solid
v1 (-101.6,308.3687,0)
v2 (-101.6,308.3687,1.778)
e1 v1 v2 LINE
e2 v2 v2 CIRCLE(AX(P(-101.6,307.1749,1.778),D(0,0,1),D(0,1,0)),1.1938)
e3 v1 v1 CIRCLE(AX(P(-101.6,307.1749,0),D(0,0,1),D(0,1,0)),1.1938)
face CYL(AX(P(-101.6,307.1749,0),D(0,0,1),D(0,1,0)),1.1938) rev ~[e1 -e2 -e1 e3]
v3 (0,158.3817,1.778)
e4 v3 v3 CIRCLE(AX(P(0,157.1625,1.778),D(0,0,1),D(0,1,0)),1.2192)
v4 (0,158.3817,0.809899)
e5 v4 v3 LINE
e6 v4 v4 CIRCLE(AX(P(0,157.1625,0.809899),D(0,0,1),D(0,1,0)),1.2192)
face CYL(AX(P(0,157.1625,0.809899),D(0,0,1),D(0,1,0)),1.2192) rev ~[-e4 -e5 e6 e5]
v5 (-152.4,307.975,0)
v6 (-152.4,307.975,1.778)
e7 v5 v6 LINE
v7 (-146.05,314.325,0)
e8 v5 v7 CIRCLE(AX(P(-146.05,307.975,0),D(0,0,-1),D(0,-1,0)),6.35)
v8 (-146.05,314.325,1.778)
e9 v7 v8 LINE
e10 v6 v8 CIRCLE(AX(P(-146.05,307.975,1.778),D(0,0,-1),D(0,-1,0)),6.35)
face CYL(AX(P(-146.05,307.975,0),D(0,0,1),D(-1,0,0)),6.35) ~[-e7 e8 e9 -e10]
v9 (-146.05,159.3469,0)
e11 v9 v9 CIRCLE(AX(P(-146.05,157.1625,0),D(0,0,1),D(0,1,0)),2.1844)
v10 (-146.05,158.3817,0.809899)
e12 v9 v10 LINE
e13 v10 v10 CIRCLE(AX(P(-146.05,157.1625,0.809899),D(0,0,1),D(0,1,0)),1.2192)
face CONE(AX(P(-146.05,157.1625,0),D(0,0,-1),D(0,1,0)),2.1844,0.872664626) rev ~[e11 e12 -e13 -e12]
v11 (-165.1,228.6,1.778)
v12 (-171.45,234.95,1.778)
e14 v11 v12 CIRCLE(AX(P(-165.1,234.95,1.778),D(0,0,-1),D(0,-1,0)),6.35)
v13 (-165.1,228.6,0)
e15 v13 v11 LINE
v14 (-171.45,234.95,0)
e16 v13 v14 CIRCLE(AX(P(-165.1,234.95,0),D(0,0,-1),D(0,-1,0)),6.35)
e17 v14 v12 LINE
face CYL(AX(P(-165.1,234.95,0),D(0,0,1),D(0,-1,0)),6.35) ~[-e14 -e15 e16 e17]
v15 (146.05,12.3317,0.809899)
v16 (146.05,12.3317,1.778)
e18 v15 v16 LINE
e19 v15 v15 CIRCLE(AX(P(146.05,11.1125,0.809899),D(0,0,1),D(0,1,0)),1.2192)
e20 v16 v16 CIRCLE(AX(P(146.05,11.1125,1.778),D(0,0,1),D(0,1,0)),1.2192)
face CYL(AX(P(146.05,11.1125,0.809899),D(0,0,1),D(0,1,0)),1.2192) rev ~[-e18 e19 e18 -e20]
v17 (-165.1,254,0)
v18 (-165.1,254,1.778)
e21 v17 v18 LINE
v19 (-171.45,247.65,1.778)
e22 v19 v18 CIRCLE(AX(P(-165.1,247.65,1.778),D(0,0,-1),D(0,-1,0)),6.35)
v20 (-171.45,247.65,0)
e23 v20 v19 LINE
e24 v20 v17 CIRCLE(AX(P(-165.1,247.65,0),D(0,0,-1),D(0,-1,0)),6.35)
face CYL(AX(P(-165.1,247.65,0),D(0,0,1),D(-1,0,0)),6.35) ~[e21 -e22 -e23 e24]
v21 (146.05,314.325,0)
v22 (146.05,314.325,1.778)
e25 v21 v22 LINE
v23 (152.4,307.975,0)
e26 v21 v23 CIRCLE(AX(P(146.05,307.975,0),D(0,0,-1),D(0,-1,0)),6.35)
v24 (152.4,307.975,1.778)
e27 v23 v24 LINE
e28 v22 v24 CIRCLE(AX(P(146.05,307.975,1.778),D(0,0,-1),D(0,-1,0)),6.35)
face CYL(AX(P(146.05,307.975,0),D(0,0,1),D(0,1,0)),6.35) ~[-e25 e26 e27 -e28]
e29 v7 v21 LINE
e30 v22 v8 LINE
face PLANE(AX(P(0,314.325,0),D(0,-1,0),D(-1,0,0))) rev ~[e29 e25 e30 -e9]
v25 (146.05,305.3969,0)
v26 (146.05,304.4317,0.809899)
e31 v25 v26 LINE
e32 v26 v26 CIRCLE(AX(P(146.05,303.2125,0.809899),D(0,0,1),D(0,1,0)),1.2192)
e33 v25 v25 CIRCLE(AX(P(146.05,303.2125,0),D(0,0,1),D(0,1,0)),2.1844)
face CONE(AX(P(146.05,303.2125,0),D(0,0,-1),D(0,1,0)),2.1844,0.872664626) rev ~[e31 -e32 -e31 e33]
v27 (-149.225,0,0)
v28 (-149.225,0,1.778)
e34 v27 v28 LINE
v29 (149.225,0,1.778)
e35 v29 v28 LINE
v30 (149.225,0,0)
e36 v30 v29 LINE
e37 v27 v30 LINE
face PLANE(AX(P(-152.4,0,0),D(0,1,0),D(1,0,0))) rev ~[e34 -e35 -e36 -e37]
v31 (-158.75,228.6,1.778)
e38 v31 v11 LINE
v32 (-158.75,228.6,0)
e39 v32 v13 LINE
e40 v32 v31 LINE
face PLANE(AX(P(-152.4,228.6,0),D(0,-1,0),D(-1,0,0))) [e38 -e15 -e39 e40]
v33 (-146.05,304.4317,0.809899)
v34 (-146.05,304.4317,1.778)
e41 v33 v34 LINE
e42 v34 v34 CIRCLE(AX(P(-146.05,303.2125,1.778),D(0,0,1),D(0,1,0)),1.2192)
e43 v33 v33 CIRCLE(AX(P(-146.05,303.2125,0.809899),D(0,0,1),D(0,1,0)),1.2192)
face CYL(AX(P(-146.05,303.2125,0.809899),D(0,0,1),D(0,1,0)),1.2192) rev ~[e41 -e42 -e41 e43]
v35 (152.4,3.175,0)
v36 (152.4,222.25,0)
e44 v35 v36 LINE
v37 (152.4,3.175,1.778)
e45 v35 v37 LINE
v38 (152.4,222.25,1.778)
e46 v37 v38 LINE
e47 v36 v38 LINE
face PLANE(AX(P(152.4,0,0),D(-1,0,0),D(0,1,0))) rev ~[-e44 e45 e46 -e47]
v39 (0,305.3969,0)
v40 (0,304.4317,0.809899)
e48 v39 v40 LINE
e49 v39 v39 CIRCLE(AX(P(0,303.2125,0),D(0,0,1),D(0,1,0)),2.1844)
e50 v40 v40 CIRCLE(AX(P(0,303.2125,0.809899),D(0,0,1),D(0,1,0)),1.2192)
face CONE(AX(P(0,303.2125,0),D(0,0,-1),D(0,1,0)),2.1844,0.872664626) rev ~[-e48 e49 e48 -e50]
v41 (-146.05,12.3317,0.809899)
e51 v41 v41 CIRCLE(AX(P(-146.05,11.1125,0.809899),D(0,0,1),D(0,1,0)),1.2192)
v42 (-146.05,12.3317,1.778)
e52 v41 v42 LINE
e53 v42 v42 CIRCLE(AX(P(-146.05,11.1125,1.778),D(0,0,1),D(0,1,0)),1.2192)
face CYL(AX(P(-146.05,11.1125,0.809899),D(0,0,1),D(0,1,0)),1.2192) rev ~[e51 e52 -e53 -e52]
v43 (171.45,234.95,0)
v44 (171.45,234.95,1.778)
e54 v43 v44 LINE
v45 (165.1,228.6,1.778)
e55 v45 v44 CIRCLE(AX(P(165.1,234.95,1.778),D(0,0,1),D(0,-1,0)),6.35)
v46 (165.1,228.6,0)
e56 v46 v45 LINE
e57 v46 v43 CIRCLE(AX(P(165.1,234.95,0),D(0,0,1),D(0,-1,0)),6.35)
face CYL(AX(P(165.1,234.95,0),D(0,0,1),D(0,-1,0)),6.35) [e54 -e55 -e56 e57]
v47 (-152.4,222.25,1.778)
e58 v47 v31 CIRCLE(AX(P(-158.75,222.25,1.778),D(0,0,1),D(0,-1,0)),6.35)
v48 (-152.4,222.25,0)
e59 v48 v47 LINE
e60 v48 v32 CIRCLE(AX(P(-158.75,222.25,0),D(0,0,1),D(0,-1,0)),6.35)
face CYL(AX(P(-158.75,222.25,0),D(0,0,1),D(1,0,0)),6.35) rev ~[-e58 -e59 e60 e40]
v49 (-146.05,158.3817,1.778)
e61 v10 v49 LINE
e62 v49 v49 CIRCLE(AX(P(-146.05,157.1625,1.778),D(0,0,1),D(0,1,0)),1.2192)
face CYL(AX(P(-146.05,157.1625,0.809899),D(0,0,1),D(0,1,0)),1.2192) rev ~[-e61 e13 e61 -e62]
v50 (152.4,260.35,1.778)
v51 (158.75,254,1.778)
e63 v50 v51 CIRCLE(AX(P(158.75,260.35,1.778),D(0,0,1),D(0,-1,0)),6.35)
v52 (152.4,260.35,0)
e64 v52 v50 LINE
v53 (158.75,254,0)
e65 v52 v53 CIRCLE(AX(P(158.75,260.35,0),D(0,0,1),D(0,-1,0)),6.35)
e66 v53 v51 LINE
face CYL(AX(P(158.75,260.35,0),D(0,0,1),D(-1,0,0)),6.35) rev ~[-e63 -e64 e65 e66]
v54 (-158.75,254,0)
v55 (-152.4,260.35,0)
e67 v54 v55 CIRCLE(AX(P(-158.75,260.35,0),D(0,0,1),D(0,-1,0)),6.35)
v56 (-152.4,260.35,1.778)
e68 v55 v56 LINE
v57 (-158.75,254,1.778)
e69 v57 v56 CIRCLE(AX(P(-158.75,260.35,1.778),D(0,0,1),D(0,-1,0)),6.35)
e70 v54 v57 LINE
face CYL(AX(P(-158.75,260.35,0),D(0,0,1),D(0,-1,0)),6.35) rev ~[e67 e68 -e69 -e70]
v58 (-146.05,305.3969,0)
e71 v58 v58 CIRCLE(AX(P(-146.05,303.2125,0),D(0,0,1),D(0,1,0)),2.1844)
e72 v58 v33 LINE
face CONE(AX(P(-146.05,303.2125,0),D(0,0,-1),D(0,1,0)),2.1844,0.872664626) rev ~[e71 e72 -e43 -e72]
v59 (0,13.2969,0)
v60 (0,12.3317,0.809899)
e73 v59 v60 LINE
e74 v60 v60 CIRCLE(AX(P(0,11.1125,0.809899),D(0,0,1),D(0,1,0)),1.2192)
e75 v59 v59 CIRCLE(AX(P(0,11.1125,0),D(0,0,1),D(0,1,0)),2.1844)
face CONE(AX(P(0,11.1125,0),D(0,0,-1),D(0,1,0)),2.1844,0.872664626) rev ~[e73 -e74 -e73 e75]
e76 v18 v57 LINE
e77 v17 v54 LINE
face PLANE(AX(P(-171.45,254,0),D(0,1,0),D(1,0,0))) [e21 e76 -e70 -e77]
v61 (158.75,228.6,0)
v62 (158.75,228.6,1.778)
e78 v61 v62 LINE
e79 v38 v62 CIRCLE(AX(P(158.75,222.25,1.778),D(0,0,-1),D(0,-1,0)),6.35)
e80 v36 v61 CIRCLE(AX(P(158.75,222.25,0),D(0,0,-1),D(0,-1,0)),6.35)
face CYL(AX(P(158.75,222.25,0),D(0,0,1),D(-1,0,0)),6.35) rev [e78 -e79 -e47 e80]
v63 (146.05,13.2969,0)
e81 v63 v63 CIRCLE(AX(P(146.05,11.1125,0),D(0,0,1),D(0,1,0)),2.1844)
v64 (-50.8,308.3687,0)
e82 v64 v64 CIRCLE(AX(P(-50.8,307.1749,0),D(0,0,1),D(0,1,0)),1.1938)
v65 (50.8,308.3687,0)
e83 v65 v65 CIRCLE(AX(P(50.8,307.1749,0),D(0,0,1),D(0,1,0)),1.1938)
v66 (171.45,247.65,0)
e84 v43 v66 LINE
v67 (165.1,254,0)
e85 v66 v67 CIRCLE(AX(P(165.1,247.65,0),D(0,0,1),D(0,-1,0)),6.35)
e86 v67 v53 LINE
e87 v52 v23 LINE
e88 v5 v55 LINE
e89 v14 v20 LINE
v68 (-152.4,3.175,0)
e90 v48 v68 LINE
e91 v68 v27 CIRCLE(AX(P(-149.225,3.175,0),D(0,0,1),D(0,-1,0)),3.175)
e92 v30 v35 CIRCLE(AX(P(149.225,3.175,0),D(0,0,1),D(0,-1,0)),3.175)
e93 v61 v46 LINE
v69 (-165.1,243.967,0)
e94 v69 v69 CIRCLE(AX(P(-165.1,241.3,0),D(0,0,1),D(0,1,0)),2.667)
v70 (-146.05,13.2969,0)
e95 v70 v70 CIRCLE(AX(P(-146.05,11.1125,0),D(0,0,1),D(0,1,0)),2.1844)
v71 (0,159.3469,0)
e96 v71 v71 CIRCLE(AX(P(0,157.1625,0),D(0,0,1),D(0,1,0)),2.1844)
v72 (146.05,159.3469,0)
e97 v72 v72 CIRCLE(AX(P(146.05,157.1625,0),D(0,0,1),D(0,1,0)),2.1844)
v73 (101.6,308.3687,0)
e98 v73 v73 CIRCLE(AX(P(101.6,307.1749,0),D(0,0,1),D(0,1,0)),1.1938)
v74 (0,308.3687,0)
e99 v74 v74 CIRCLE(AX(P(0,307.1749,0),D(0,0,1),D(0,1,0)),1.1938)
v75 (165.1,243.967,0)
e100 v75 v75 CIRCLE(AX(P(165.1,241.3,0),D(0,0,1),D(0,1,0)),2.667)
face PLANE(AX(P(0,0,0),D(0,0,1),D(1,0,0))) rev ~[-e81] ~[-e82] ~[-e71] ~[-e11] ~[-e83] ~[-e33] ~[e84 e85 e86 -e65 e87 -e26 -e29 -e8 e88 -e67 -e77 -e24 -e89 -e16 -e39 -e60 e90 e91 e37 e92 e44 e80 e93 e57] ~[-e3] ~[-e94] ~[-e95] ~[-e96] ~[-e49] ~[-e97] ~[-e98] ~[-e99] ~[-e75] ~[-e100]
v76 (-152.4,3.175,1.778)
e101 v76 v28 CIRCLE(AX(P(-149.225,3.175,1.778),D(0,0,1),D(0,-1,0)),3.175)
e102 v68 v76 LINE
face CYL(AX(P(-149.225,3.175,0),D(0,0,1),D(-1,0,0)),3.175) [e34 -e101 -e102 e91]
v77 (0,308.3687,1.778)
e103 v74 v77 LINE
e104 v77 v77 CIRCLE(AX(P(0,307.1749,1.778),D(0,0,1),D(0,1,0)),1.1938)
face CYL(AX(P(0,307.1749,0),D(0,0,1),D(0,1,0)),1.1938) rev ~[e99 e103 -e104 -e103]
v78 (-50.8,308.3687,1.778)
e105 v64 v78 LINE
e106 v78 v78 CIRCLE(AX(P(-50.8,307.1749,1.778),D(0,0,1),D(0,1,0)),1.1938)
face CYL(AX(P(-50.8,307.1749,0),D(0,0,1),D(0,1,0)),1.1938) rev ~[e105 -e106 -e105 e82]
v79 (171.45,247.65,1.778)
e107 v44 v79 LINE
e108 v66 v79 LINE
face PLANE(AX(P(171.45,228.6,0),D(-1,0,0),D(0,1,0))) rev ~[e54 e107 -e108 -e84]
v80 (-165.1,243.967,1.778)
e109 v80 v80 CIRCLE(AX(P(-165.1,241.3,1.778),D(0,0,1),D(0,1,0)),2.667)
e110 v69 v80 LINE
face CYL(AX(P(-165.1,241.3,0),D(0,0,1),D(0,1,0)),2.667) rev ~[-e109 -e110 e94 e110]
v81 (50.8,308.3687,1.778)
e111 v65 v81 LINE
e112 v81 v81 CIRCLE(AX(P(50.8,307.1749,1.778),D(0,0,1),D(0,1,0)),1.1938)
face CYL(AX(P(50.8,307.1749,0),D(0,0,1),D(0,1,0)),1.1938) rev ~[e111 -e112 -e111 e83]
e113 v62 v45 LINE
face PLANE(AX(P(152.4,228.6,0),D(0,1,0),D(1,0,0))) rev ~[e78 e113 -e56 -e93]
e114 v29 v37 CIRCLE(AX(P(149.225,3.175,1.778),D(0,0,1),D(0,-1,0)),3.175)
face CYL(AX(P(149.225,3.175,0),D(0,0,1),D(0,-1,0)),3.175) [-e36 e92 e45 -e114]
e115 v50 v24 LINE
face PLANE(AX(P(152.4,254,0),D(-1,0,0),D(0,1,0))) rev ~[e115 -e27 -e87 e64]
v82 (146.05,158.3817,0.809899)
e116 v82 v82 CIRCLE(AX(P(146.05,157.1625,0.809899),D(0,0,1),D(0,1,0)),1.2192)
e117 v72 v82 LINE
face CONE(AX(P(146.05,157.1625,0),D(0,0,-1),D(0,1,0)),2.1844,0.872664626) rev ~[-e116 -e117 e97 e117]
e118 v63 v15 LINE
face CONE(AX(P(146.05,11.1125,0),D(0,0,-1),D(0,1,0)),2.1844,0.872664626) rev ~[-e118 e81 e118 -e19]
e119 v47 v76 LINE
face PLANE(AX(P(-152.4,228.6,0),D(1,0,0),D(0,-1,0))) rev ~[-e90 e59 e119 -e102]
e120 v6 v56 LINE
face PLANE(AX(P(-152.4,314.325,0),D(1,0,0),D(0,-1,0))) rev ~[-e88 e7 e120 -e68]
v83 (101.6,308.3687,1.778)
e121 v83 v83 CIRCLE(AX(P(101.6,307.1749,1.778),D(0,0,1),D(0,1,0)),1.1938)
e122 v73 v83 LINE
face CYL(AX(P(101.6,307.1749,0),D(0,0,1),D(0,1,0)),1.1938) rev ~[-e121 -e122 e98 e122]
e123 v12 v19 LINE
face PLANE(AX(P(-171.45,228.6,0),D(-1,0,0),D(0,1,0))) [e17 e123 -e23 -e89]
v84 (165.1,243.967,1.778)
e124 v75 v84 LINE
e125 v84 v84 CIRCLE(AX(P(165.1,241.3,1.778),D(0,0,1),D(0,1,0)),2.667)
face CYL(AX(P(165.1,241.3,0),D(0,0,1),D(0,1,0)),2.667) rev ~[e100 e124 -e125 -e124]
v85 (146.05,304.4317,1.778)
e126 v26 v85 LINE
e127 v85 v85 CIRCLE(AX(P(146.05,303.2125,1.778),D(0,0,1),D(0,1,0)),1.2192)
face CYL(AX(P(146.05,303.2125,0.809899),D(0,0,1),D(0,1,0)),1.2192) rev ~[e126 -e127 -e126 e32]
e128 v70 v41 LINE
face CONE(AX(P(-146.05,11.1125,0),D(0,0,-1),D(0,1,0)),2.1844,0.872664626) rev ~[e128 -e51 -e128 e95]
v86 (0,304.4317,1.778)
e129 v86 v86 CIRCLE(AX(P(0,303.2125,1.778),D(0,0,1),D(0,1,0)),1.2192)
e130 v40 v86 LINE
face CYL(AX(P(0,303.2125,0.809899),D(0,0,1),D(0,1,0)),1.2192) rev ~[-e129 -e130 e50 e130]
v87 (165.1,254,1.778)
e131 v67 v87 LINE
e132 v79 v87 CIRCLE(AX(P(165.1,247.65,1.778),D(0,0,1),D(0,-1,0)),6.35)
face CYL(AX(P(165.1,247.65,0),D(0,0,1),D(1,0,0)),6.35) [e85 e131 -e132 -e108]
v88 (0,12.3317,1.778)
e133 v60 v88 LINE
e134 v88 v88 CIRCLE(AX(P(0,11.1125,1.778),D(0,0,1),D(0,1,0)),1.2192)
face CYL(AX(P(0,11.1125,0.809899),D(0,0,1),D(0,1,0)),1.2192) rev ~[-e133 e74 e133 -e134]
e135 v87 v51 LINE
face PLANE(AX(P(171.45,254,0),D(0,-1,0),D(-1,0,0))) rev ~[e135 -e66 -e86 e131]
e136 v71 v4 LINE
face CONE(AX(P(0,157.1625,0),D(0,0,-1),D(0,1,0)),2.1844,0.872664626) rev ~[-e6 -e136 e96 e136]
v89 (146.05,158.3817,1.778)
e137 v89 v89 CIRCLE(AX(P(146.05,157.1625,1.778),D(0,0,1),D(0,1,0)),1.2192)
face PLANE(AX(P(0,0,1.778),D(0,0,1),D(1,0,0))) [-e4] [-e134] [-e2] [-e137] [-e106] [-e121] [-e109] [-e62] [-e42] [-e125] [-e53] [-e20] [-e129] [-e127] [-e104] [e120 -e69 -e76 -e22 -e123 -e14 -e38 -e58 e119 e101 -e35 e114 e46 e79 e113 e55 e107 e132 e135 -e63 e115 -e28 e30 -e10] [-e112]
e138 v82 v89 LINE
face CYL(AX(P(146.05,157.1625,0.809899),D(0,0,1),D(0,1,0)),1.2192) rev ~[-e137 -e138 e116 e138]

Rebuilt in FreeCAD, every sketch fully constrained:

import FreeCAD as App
import Part
import Sketcher
Q = App.Units.Quantity


def edges_at(feature, points):
    """Names of the edges that pass closest to the given points."""
    edges = feature.Shape.Edges
    near = lambda p: min(range(len(edges)), key=lambda i: edges[i].distToShape(Part.Vertex(*p))[0])
    return sorted({f"Edge{near(p) + 1}" for p in points})


def add_polygon(sketch, points):
    """Adds a closed chain of lines whose ends are joined by coincident constraints."""
    first, n = sketch.GeometryCount, len(points)
    for a, b in zip(points, points[1:] + points[:1]):
        sketch.addGeometry(Part.LineSegment(App.Vector(*a, 0), App.Vector(*b, 0)), False)
    for i in range(n):
        sketch.addConstraint(Sketcher.Constraint("Coincident", first + i, 2, first + (i + 1) % n, 1))

doc = App.newDocument("Part")
params = doc.addObject("Spreadsheet::Sheet", "Params")
for row, (alias, value) in enumerate([
    ("sketch1_width", "12 in"),
    ("sketch1_height", "1 in"),
    ("sketch1_width2", "0.75 in"),
    ("sketch1_height2", "9 in"),
    ("pad1_length", "0.07 in"),
    ("sketch2_diameter", "0.21 in"),
    ("hole_diameter", "0.21 in"),
    ("fillet_radius", "0.125 in"),
    ("sketch3_diameter", "0.094 in"),
    ("hole2_diameter", "0.094 in"),
    ("fillet2_radius", "0.25 in"),
    ("sketch4_diameter", "0.096 in"),
    ("hole3_diameter", "0.096 in"),
    ("hole3_csink_diameter", "0.172 in"),
], start=1):
    params.set(f"A{row}", alias)
    params.set(f"B{row}", "=" + value)
    params.setAlias(f"B{row}", alias)

body = doc.addObject("PartDesign::Body", "Body")

sketch1 = doc.addObject("Sketcher::SketchObject", "Sketch")
body.addObject(sketch1)
sketch1.AttachmentSupport = (doc.XY_Plane, [""])
sketch1.MapMode = "FlatFace"
add_polygon(sketch1, [(-152, 229), (-152, 0), (152, 0), (152, 229), (171, 229), (171, 254), (152, 254), (152, 314), (-152, 314), (-152, 254), (-171, 254), (-171, 229)])
sketch1.addConstraint([
    Sketcher.Constraint("Vertical", 0),
    Sketcher.Constraint("Horizontal", 1),
    Sketcher.Constraint("Vertical", 2),
    Sketcher.Constraint("Horizontal", 3),
    Sketcher.Constraint("Vertical", 4),
    Sketcher.Constraint("Horizontal", 5),
    Sketcher.Constraint("Vertical", 6),
    Sketcher.Constraint("Horizontal", 7),
    Sketcher.Constraint("Vertical", 8),
    Sketcher.Constraint("Horizontal", 9),
    Sketcher.Constraint("Vertical", 10),
    Sketcher.Constraint("Horizontal", 11),
    Sketcher.Constraint("Symmetric", 0, 2, 1, 2, -1, 1),
    Sketcher.Constraint("Symmetric", 5, 2, 8, 2, -2),
    Sketcher.Constraint("Symmetric", 3, 2, 10, 2, -2),
    Sketcher.Constraint("Vertical", 2, 2, 5, 2),
    Sketcher.Constraint("DistanceX", 1, 1, 1, 2, Q("12 in")),
    Sketcher.Constraint("DistanceY", 4, 1, 4, 2, Q("1 in")),
    Sketcher.Constraint("DistanceX", 3, 1, 3, 2, Q("0.75 in")),
    Sketcher.Constraint("DistanceY", 0, 2, 0, 1, Q("9 in")),
    Sketcher.Constraint("DistanceY", -1, 1, 6, 2, Q("12.375 in")),
])
sketch1.setExpression("Constraints[28]", "Params.sketch1_width")
sketch1.setExpression("Constraints[29]", "Params.sketch1_height")
sketch1.setExpression("Constraints[30]", "Params.sketch1_width2")
sketch1.setExpression("Constraints[31]", "Params.sketch1_height2")
pad1 = doc.addObject("PartDesign::Pad", "Pad")
body.addObject(pad1)
pad1.Profile = sketch1
pad1.setExpression("Length", "Params.pad1_length")

sketch2 = doc.addObject("Sketcher::SketchObject", "Sketch001")
body.addObject(sketch2)
sketch2.AttachmentSupport = (doc.XY_Plane, [""])
sketch2.MapMode = "FlatFace"
sketch2.addGeometry([
    Part.Circle(App.Vector(-165.1, 241.3, 0), App.Vector(0, 0, 1), 2.7),
    Part.Circle(App.Vector(165.1, 241.3, 0), App.Vector(0, 0, 1), 2.7),
], False)
sketch2.addConstraint([
    Sketcher.Constraint("Equal", 0, 1),
    Sketcher.Constraint("Symmetric", 0, 3, 1, 3, -2),
    Sketcher.Constraint("Diameter", 0, Q("0.21 in")),
    Sketcher.Constraint("DistanceX", 0, 3, 1, 3, Q("13 in")),
    Sketcher.Constraint("DistanceY", -1, 1, 0, 3, Q("9.5 in")),
])
sketch2.setExpression("Constraints[2]", "Params.sketch2_diameter")
doc.recompute()
hole = doc.addObject("PartDesign::Hole", "Hole")
body.addObject(hole)
hole.Profile = sketch2
hole.ThreadType = "None"
hole.setExpression("Diameter", "Params.hole_diameter")
hole.DepthType = "ThroughAll"
hole.Reversed = True
doc.recompute()

fillet = doc.addObject("PartDesign::Fillet", "Fillet")
body.addObject(fillet)
fillet.Base = (hole, edges_at(hole, [(152.4, 0, 0.889), (-152.4, 0, 0.889)]))
fillet.setExpression("Radius", "Params.fillet_radius")

sketch3 = doc.addObject("Sketcher::SketchObject", "Sketch002")
body.addObject(sketch3)
sketch3.AttachmentSupport = (doc.XY_Plane, [""])
sketch3.MapMode = "FlatFace"
sketch3.addGeometry([
    Part.Circle(App.Vector(101.6, 307.2, 0), App.Vector(0, 0, 1), 1.2),
    Part.Circle(App.Vector(0, 307.2, 0), App.Vector(0, 0, 1), 1.2),
    Part.Circle(App.Vector(-101.6, 307.2, 0), App.Vector(0, 0, 1), 1.2),
    Part.Circle(App.Vector(-50.8, 307.2, 0), App.Vector(0, 0, 1), 1.2),
    Part.Circle(App.Vector(50.8, 307.2, 0), App.Vector(0, 0, 1), 1.2),
], False)
sketch3.addConstraint([
    Sketcher.Constraint("Equal", 0, 1),
    Sketcher.Constraint("Equal", 1, 2),
    Sketcher.Constraint("Equal", 2, 3),
    Sketcher.Constraint("Equal", 3, 4),
    Sketcher.Constraint("Symmetric", 0, 3, 2, 3, -2),
    Sketcher.Constraint("Symmetric", 3, 3, 4, 3, -2),
    Sketcher.Constraint("PointOnObject", 1, 3, -2),
    Sketcher.Constraint("Horizontal", 0, 3, 1, 3),
    Sketcher.Constraint("Horizontal", 2, 3, 3, 3),
    Sketcher.Constraint("Diameter", 0, Q("0.094 in")),
    Sketcher.Constraint("DistanceX", -1, 1, 0, 3, Q("4 in")),
    Sketcher.Constraint("DistanceX", 3, 3, -1, 1, Q("2 in")),
    Sketcher.Constraint("DistanceY", -1, 1, 0, 3, Q("12.0935 in")),
])
sketch3.setExpression("Constraints[9]", "Params.sketch3_diameter")
doc.recompute()
hole2 = doc.addObject("PartDesign::Hole", "Hole001")
body.addObject(hole2)
hole2.Profile = sketch3
hole2.ThreadType = "None"
hole2.setExpression("Diameter", "Params.hole2_diameter")
hole2.DepthType = "ThroughAll"
hole2.Reversed = True
doc.recompute()

fillet2 = doc.addObject("PartDesign::Fillet", "Fillet001")
body.addObject(fillet2)
fillet2.Base = (hole2, edges_at(hole2, [
    (152.4, 228.6, 0.889),
    (171.45, 228.6, 0.889),
    (171.45, 254, 0.889),
    (152.4, 254, 0.889),
    (152.4, 314.325, 0.889),
    (-152.4, 314.325, 0.889),
    (-152.4, 254, 0.889),
    (-171.45, 254, 0.889),
    (-171.45, 228.6, 0.889),
    (-152.4, 228.6, 0.889),
]))
fillet2.setExpression("Radius", "Params.fillet2_radius")

sketch4 = doc.addObject("Sketcher::SketchObject", "Sketch003")
body.addObject(sketch4)
sketch4.AttachmentSupport = (doc.XY_Plane, [""])
sketch4.MapMode = "FlatFace"
sketch4.addGeometry([
    Part.Circle(App.Vector(-146.1, 11.1, 0), App.Vector(0, 0, 1), 1.2),
    Part.Circle(App.Vector(146.1, 11.1, 0), App.Vector(0, 0, 1), 1.2),
    Part.Circle(App.Vector(146.1, 303.2, 0), App.Vector(0, 0, 1), 1.2),
    Part.Circle(App.Vector(-146.1, 303.2, 0), App.Vector(0, 0, 1), 1.2),
    Part.Circle(App.Vector(146.1, 157.2, 0), App.Vector(0, 0, 1), 1.2),
    Part.Circle(App.Vector(0, 11.1, 0), App.Vector(0, 0, 1), 1.2),
    Part.Circle(App.Vector(0, 157.2, 0), App.Vector(0, 0, 1), 1.2),
    Part.Circle(App.Vector(-146.1, 157.2, 0), App.Vector(0, 0, 1), 1.2),
    Part.Circle(App.Vector(0, 303.2, 0), App.Vector(0, 0, 1), 1.2),
], False)
sketch4.addConstraint([
    Sketcher.Constraint("Equal", 0, 1),
    Sketcher.Constraint("Equal", 1, 2),
    Sketcher.Constraint("Equal", 2, 3),
    Sketcher.Constraint("Equal", 3, 4),
    Sketcher.Constraint("Equal", 4, 5),
    Sketcher.Constraint("Equal", 5, 6),
    Sketcher.Constraint("Equal", 6, 7),
    Sketcher.Constraint("Equal", 7, 8),
    Sketcher.Constraint("Symmetric", 0, 3, 1, 3, -2),
    Sketcher.Constraint("Symmetric", 2, 3, 3, 3, -2),
    Sketcher.Constraint("Symmetric", 4, 3, 7, 3, -2),
    Sketcher.Constraint("PointOnObject", 5, 3, -2),
    Sketcher.Constraint("PointOnObject", 6, 3, -2),
    Sketcher.Constraint("PointOnObject", 8, 3, -2),
    Sketcher.Constraint("Horizontal", 1, 3, 5, 3),
    Sketcher.Constraint("Horizontal", 4, 3, 6, 3),
    Sketcher.Constraint("Horizontal", 3, 3, 8, 3),
    Sketcher.Constraint("Vertical", 1, 3, 2, 3),
    Sketcher.Constraint("Vertical", 2, 3, 4, 3),
    Sketcher.Constraint("Diameter", 0, Q("0.096 in")),
    Sketcher.Constraint("DistanceX", 0, 3, 1, 3, Q("11.5 in")),
    Sketcher.Constraint("DistanceY", 1, 3, 2, 3, Q("11.5 in")),
    Sketcher.Constraint("DistanceY", 1, 3, 4, 3, Q("5.75 in")),
    Sketcher.Constraint("DistanceY", -1, 1, 0, 3, Q("0.4375 in")),
])
sketch4.setExpression("Constraints[19]", "Params.sketch4_diameter")
doc.recompute()
hole3 = doc.addObject("PartDesign::Hole", "Hole002")
body.addObject(hole3)
hole3.Profile = sketch4
hole3.ThreadType = "None"
hole3.setExpression("Diameter", "Params.hole3_diameter")
hole3.DepthType = "ThroughAll"
hole3.HoleCutType = "Countersink"
hole3.setExpression("HoleCutDiameter", "Params.hole3_csink_diameter")
hole3.HoleCutCountersinkAngle = 100
hole3.Reversed = True

doc.recompute()
